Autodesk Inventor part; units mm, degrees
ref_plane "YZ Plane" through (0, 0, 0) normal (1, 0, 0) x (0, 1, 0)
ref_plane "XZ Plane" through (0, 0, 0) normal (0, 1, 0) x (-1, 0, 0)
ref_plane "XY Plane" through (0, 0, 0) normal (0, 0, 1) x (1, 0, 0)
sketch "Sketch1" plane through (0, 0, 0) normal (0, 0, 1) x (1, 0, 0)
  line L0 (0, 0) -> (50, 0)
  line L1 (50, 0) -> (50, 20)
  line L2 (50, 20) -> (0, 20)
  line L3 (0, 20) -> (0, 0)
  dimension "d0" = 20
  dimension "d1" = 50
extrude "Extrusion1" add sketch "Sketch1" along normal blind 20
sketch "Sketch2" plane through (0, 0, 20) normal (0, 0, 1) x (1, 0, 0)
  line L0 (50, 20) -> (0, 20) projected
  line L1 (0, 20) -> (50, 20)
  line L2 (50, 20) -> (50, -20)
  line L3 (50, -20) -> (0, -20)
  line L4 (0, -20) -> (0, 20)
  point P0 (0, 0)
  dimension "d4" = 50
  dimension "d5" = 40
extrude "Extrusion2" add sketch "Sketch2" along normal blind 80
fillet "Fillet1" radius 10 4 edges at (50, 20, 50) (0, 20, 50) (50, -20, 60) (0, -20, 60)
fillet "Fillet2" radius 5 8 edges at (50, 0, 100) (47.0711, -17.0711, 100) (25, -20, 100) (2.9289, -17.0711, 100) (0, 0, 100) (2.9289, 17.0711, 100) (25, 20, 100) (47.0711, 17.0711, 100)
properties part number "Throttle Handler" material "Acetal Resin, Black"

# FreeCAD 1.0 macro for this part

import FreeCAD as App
import Part
import Sketcher

V = App.Vector


def edges_at(feature, points):
    """Names of the edges that pass closest to the given points."""
    edges = feature.Shape.Edges
    near = lambda p: min(range(len(edges)), key=lambda i: edges[i].distToShape(Part.Vertex(*p))[0])
    return sorted({f"Edge{near(p) + 1}" for p in points})

doc = App.newDocument("Part")
body = doc.addObject("PartDesign::Body", "Body")

# Sketch on XY plane
sketch1 = body.newObject("Sketcher::SketchObject", "Sketch")
sketch1.AttachmentSupport = (doc.getObject("XY_Plane"), [""])
sketch1.MapMode = "FlatFace"
sketch1.addGeometry(Part.LineSegment(V(0, 20, 0), V(0, 0, 0)), False)
sketch1.addGeometry(Part.LineSegment(V(0, 0, 0), V(50, 0, 0)), False)
sketch1.addGeometry(Part.LineSegment(V(50, 0, 0), V(50, 20, 0)), False)
sketch1.addGeometry(Part.LineSegment(V(50, 20, 0), V(0, 20, 0)), False)
sketch1.addConstraint(Sketcher.Constraint("Coincident", 0, 2, 1, 1))
sketch1.addConstraint(Sketcher.Constraint("Coincident", 1, 2, 2, 1))
sketch1.addConstraint(Sketcher.Constraint("Coincident", 2, 2, 3, 1))
sketch1.addConstraint(Sketcher.Constraint("Coincident", 3, 2, 0, 1))
sketch1.addConstraint(Sketcher.Constraint("Vertical", 0))
sketch1.addConstraint(Sketcher.Constraint("Horizontal", 1))
sketch1.addConstraint(Sketcher.Constraint("Vertical", 2))
sketch1.addConstraint(Sketcher.Constraint("Horizontal", 3))
sketch1.addConstraint(Sketcher.Constraint("Coincident", 0, 2, -1, 1))
sketch1.addConstraint(Sketcher.Constraint("DistanceX", 1, 1, 1, 2, 50.0))
sketch1.addConstraint(Sketcher.Constraint("DistanceY", 0, 2, 0, 1, 20.0))
pad1 = body.newObject("PartDesign::Pad", "Pad")
pad1.Profile = sketch1
pad1.Length = 20

# Sketch on XY plane
sketch2 = body.newObject("Sketcher::SketchObject", "Sketch001")
sketch2.AttachmentSupport = (doc.getObject("XY_Plane"), [""])
sketch2.MapMode = "FlatFace"
sketch2.AttachmentOffset = App.Placement(V(0, 0, 20), App.Rotation())
sketch2.addGeometry(Part.LineSegment(V(50, -20, 0), V(50, 20, 0)), False)
sketch2.addGeometry(Part.LineSegment(V(50, 20, 0), V(0, 20, 0)), False)
sketch2.addGeometry(Part.LineSegment(V(0, 20, 0), V(0, -20, 0)), False)
sketch2.addGeometry(Part.LineSegment(V(0, -20, 0), V(50, -20, 0)), False)
sketch2.addConstraint(Sketcher.Constraint("Coincident", 0, 2, 1, 1))
sketch2.addConstraint(Sketcher.Constraint("Coincident", 1, 2, 2, 1))
sketch2.addConstraint(Sketcher.Constraint("Coincident", 2, 2, 3, 1))
sketch2.addConstraint(Sketcher.Constraint("Coincident", 3, 2, 0, 1))
sketch2.addConstraint(Sketcher.Constraint("Vertical", 0))
sketch2.addConstraint(Sketcher.Constraint("Horizontal", 1))
sketch2.addConstraint(Sketcher.Constraint("Vertical", 2))
sketch2.addConstraint(Sketcher.Constraint("Horizontal", 3))
sketch2.addConstraint(Sketcher.Constraint("Symmetric", 1, 2, 2, 2, -1, 1))
sketch2.addConstraint(Sketcher.Constraint("DistanceX", 1, 2, 1, 1, 50.0))
sketch2.addConstraint(Sketcher.Constraint("DistanceY", 0, 1, 0, 2, 40.0))
pad2 = body.newObject("PartDesign::Pad", "Pad001")
pad2.Profile = sketch2
pad2.Length = 80
doc.recompute()

fillet = body.newObject("PartDesign::Fillet", "Fillet")
fillet.Base = (pad2, edges_at(pad2, [
    (50, 20, 50),
    (0, 20, 50),
    (50, -20, 60),
    (0, -20, 60),
]))
fillet.Radius = 10
doc.recompute()

fillet2 = body.newObject("PartDesign::Fillet", "Fillet001")
fillet2.Base = (fillet, edges_at(fillet, [
    (50, 0, 100),
    (47.071, -17.071, 100),
    (25, -20, 100),
    (2.929, -17.071, 100),
    (0, 0, 100),
    (2.929, 17.071, 100),
    (25, 20, 100),
    (47.071, 17.071, 100),
]))
fillet2.Radius = 5

doc.recompute()
